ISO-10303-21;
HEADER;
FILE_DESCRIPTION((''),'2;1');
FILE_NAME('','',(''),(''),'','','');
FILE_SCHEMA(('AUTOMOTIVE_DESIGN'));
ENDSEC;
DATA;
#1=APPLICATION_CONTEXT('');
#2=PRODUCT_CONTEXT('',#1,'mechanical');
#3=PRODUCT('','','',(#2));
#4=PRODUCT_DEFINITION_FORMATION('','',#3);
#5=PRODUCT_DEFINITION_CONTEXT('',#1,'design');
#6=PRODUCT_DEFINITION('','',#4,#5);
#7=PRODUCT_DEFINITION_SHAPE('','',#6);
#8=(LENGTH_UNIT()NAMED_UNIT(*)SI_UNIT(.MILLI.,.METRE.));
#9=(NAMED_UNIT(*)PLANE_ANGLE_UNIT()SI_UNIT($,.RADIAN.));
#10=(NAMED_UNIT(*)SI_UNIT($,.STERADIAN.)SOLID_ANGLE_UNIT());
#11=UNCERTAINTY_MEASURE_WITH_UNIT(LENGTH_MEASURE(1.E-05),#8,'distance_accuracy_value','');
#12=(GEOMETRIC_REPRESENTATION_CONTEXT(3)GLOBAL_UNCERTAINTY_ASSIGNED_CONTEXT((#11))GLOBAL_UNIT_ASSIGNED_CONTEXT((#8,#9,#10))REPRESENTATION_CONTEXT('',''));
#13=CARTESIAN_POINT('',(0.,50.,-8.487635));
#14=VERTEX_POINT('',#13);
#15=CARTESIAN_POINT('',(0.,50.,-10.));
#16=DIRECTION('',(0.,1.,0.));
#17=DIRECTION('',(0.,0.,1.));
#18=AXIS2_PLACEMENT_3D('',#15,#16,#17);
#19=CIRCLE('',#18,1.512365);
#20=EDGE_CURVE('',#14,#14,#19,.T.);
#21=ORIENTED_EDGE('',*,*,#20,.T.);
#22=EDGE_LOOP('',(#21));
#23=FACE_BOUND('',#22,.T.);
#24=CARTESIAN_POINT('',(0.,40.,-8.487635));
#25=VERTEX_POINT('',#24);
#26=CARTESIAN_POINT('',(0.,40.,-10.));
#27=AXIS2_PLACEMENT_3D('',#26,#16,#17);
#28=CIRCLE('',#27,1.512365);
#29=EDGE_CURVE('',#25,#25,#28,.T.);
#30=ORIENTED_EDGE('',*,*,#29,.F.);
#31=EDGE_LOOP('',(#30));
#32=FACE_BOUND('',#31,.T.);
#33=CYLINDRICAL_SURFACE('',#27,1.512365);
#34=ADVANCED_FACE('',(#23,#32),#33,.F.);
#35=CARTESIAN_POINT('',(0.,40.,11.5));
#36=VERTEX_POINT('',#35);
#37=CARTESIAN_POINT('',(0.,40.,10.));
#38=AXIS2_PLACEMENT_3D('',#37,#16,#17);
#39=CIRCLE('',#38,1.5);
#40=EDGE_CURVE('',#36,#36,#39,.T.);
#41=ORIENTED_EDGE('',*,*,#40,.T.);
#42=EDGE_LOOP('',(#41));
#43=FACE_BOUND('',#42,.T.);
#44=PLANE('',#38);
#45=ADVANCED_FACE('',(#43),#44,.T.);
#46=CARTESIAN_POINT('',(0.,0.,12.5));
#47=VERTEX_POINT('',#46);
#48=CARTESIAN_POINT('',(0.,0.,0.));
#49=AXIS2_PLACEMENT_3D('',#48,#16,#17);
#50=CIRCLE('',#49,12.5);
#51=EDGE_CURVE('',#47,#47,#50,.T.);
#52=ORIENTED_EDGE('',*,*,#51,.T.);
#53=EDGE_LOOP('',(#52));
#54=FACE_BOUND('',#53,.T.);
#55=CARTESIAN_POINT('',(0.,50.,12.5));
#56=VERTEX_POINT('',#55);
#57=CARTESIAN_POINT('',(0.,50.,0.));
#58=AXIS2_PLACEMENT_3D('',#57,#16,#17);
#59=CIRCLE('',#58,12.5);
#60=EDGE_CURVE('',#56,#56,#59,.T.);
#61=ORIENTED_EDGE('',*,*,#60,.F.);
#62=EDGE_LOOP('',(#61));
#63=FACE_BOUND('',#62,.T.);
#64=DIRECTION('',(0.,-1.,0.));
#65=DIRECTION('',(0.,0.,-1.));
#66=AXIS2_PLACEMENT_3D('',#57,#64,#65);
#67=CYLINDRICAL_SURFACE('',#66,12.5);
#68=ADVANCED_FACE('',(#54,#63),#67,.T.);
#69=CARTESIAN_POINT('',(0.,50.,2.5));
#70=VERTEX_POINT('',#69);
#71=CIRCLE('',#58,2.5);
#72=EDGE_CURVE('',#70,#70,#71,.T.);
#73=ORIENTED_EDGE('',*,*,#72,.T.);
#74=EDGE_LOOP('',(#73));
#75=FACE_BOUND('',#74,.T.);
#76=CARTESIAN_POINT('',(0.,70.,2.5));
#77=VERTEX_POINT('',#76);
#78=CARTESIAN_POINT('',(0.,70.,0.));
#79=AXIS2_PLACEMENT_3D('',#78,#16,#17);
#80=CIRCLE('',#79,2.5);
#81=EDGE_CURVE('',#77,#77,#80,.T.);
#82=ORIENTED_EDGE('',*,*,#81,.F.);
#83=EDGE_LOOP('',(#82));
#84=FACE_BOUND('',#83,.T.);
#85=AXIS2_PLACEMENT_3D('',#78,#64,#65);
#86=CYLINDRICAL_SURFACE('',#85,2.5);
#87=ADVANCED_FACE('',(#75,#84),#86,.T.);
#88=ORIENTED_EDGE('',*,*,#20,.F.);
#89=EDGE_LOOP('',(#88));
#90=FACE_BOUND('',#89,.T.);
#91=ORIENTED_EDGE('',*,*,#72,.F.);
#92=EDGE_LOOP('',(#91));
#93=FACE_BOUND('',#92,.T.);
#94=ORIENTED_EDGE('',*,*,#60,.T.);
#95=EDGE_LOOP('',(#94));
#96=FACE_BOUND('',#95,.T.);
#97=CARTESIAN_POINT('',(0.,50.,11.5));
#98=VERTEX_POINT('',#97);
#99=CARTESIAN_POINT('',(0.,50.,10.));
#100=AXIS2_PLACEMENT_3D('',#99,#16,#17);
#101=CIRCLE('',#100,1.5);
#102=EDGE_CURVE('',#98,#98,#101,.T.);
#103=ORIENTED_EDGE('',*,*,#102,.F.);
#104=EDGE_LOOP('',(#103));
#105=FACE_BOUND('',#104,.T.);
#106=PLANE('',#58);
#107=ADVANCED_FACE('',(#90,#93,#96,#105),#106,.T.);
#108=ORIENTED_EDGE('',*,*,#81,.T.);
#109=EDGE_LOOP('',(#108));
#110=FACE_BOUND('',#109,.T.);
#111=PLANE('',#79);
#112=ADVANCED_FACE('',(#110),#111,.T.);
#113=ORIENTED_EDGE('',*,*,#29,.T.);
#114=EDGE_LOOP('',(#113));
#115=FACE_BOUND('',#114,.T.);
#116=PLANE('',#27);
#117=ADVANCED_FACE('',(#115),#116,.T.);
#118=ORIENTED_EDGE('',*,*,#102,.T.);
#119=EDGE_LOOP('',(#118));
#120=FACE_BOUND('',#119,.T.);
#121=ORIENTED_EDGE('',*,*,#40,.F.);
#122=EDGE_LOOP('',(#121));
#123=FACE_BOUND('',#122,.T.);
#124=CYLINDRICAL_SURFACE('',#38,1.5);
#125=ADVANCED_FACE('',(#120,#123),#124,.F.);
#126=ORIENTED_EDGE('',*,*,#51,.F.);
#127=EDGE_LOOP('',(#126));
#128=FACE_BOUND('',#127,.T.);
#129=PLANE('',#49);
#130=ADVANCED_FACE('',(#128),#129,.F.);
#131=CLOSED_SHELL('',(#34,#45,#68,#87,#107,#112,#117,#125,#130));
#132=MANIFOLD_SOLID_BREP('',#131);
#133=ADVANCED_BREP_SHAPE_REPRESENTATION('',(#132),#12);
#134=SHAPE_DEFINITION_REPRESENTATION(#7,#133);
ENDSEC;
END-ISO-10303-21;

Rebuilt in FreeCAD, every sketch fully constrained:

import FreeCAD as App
import Part
import Sketcher
Q = App.Units.Quantity

doc = App.newDocument("Part")
body = doc.addObject("PartDesign::Body", "Body")

sketch1 = body.newObject("Sketcher::SketchObject", "Sketch")
sketch1.AttachmentSupport = (doc.getObject("XZ_Plane"), [""])
sketch1.MapMode = "FlatFace"
sketch1.addGeometry(Part.Circle(App.Vector(0, 0, 0), App.Vector(0, 0, 1), 12.5), False)
sketch1.addConstraint(Sketcher.Constraint("Coincident", 0, 3, -1, 1))
sketch1.addConstraint(Sketcher.Constraint("Diameter", 0, Q("25 mm")))
pad1 = body.newObject("PartDesign::Pad", "Pad")
pad1.Profile = sketch1
pad1.Length = 50
pad1.Reversed = True

sketch2 = body.newObject("Sketcher::SketchObject", "Sketch001")
sketch2.AttachmentSupport = (doc.getObject("XZ_Plane"), [""])
sketch2.MapMode = "FlatFace"
sketch2.AttachmentOffset = App.Placement(App.Vector(0, 0, -50), App.Rotation())
sketch2.addGeometry(Part.Circle(App.Vector(0, 10, 0), App.Vector(0, 0, 1), 1.5), False)
sketch2.addGeometry(Part.Circle(App.Vector(0, -10, 0), App.Vector(0, 0, 1), 1.512365), False)
sketch2.addConstraint(Sketcher.Constraint("Symmetric", 0, 3, 1, 3, -1, 1))
sketch2.addConstraint(Sketcher.Constraint("PointOnObject", 0, 3, -2))
sketch2.addConstraint(Sketcher.Constraint("Diameter", 0, Q("3 mm")))
sketch2.addConstraint(Sketcher.Constraint("DistanceY", -1, 1, 0, 3, Q("10 mm")))
sketch2.addConstraint(Sketcher.Constraint("Diameter", 1, Q("3.02473 mm")))
pocket1 = body.newObject("PartDesign::Pocket", "Pocket")
pocket1.Profile = sketch2
pocket1.Length = 10
pocket1.Reversed = True

sketch3 = body.newObject("Sketcher::SketchObject", "Sketch002")
sketch3.AttachmentSupport = (doc.getObject("XZ_Plane"), [""])
sketch3.MapMode = "FlatFace"
sketch3.AttachmentOffset = App.Placement(App.Vector(0, 0, -50), App.Rotation())
sketch3.addGeometry(Part.Circle(App.Vector(0, 0, 0), App.Vector(0, 0, 1), 2.5), False)
sketch3.addConstraint(Sketcher.Constraint("Coincident", 0, 3, -1, 1))
sketch3.addConstraint(Sketcher.Constraint("Diameter", 0, Q("5 mm")))
pad2 = body.newObject("PartDesign::Pad", "Pad001")
pad2.Profile = sketch3
pad2.Length = 20
pad2.Reversed = True

doc.recompute()
